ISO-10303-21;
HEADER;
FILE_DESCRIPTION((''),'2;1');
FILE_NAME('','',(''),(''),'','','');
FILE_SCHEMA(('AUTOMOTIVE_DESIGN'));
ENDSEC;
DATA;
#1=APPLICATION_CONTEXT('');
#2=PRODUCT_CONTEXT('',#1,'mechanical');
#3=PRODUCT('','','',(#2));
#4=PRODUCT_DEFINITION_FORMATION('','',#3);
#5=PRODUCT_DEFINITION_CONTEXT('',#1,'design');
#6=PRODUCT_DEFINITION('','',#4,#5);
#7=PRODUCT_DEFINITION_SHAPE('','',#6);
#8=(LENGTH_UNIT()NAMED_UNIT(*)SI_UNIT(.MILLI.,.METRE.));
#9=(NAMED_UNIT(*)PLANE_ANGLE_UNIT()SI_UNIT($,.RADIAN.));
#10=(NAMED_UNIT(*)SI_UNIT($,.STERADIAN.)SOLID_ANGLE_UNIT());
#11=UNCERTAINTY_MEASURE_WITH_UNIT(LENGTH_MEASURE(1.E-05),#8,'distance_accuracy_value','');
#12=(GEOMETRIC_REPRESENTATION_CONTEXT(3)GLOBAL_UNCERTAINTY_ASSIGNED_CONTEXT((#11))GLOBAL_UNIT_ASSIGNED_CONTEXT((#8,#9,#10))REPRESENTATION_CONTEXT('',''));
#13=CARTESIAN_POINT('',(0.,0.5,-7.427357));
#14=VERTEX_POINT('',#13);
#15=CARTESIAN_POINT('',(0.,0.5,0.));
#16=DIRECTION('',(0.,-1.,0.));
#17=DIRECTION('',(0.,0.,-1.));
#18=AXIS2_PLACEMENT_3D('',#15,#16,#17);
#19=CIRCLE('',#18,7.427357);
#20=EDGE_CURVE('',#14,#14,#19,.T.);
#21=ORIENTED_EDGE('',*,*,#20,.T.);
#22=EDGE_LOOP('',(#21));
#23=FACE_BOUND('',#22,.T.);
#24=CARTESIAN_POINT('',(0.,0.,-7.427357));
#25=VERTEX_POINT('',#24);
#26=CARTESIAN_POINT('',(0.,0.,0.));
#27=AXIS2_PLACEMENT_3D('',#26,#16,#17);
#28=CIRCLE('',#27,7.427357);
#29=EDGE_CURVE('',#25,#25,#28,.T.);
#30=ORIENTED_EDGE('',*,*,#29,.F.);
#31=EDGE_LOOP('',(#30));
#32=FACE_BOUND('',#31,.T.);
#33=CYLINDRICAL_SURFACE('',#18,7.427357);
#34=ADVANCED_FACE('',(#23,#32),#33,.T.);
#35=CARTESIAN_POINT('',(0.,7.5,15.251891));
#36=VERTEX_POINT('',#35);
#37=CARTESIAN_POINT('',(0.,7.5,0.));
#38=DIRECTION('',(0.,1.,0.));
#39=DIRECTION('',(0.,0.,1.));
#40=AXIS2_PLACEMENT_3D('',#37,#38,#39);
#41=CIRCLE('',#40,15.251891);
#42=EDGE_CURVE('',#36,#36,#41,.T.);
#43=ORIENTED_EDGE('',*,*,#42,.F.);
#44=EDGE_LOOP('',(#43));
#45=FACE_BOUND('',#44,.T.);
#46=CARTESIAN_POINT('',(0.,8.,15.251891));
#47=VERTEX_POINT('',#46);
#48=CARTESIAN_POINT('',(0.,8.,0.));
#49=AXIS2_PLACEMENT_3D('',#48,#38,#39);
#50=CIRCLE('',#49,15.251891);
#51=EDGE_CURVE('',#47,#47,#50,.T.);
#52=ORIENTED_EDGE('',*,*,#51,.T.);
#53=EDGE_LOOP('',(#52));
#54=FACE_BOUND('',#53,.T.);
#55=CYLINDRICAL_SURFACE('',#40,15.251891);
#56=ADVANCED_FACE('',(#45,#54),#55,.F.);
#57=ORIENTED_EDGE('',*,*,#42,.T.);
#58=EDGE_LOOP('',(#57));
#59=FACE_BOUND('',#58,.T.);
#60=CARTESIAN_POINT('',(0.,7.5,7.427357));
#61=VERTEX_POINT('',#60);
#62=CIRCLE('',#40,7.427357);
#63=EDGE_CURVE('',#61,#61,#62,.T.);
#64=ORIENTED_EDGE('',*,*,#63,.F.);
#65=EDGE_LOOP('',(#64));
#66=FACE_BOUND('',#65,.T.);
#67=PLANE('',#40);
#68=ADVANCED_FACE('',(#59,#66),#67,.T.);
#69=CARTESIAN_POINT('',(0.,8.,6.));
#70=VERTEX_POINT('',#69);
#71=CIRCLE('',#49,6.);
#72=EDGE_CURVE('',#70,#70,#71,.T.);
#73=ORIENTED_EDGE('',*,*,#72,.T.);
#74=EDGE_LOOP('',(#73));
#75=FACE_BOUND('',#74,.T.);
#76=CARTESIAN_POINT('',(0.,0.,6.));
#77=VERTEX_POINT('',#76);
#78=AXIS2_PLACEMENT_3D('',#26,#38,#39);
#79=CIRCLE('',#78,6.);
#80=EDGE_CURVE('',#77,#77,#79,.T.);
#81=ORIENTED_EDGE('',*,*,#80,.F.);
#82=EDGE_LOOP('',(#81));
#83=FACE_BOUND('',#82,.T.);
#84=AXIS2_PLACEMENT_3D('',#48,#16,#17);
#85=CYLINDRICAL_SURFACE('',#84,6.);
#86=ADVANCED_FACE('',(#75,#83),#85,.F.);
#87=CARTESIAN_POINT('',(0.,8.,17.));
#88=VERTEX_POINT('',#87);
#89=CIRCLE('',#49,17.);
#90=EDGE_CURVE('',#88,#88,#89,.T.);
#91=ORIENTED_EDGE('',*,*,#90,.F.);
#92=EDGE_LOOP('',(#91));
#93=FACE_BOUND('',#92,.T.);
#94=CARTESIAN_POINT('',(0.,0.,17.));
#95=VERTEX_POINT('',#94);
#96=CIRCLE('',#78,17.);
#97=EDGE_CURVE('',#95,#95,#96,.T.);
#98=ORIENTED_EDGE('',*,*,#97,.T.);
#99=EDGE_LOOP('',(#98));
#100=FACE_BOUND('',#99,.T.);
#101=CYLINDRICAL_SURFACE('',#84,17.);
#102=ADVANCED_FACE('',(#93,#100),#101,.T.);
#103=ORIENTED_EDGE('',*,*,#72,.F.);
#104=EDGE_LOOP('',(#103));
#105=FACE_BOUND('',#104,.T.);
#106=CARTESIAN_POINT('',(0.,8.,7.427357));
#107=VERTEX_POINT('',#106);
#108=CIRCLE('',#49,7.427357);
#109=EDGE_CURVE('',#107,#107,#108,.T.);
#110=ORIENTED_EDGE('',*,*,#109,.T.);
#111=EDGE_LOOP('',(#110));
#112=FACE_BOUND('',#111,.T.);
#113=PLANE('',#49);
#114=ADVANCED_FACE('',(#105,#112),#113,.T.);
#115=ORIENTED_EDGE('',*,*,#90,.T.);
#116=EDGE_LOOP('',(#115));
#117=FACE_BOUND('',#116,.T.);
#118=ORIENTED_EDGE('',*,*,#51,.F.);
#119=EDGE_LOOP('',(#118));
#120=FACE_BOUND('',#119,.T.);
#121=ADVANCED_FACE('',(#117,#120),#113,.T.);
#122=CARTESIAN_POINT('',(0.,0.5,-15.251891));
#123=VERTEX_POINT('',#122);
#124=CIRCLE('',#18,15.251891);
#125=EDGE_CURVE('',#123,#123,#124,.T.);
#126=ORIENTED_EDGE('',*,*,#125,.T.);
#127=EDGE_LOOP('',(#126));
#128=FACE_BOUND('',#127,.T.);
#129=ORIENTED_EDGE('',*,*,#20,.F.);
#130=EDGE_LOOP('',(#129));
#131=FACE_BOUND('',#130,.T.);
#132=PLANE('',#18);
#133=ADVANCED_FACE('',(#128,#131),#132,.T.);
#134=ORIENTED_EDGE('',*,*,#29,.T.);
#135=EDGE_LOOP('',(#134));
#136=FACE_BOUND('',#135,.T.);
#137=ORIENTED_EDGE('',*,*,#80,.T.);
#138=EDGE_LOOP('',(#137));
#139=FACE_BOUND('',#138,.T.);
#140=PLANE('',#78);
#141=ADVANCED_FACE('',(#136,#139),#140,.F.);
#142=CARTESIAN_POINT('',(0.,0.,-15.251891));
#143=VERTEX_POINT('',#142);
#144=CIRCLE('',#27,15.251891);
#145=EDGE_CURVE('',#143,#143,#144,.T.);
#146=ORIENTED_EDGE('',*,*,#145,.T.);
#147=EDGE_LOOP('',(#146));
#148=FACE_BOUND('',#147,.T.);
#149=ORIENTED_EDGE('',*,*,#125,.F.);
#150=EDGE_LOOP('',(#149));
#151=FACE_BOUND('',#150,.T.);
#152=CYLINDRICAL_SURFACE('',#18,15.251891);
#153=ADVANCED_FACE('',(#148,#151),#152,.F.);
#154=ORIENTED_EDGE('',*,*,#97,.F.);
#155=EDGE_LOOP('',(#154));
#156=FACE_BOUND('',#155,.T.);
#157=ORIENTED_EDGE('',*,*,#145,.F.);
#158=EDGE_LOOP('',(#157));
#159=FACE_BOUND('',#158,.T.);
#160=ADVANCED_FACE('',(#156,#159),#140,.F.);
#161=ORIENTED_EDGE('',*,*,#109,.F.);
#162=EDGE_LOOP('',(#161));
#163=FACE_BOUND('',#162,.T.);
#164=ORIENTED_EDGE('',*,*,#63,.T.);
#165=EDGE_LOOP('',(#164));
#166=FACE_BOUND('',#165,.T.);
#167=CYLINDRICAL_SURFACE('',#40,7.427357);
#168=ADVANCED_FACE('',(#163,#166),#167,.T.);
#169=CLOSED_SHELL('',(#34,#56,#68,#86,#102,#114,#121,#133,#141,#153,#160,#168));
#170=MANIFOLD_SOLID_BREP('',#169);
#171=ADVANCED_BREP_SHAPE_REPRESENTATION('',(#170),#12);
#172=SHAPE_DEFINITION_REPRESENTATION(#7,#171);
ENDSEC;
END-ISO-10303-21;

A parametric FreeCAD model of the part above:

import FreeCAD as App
import Part
import Sketcher
from FreeCAD import Vector
Q = App.Units.Quantity

doc = App.newDocument("Part")
body = doc.addObject("PartDesign::Body", "Body")

sketch1 = doc.addObject("Sketcher::SketchObject", "Sketch")
body.addObject(sketch1)
sketch1.AttachmentSupport = (doc.XZ_Plane, [""])
sketch1.MapMode = "FlatFace"
sketch1.addGeometry([
    Part.Circle(Vector(0, 0, 0), Vector(0, 0, 1), 17),
    Part.Circle(Vector(0, 0, 0), Vector(0, 0, 1), 6),
], False)
sketch1.addConstraint([
    Sketcher.Constraint("Coincident", 0, 3, -1, 1),
    Sketcher.Constraint("Coincident", 1, 3, -1, 1),
    Sketcher.Constraint("Diameter", 0, Q("34 mm")),
    Sketcher.Constraint("Diameter", 1, Q("12 mm")),
])
pad1 = doc.addObject("PartDesign::Pad", "Pad")
body.addObject(pad1)
pad1.Profile = sketch1
pad1.Length = 8
pad1.Reversed = True

sketch2 = doc.addObject("Sketcher::SketchObject", "Sketch001")
body.addObject(sketch2)
sketch2.AttachmentSupport = (doc.XZ_Plane, [""])
sketch2.MapMode = "FlatFace"
sketch2.AttachmentOffset = App.Placement(Vector(0, 0, -8), App.Rotation())
sketch2.addGeometry([
    Part.Circle(Vector(0, 0, 0), Vector(0, 0, 1), 15.251891),
    Part.Circle(Vector(0, 0, 0), Vector(0, 0, 1), 7.427357),
], False)
sketch2.addConstraint([
    Sketcher.Constraint("Coincident", 0, 3, -1, 1),
    Sketcher.Constraint("Coincident", 1, 3, -1, 1),
    Sketcher.Constraint("Diameter", 0, Q("30.503782 mm")),
    Sketcher.Constraint("Diameter", 1, Q("14.854713 mm")),
])
pocket1 = doc.addObject("PartDesign::Pocket", "Pocket")
body.addObject(pocket1)
pocket1.Profile = sketch2
pocket1.Length = 0.5
pocket1.Reversed = True

sketch3 = doc.addObject("Sketcher::SketchObject", "Sketch002")
body.addObject(sketch3)
sketch3.AttachmentSupport = (doc.XZ_Plane, [""])
sketch3.MapMode = "FlatFace"
sketch3.AttachmentOffset = App.Placement(Vector(0, 0, -0.5), App.Rotation())
sketch3.addGeometry([
    Part.Circle(Vector(0, 0, 0), Vector(0, 0, 1), 15.251891),
    Part.Circle(Vector(0, 0, 0), Vector(0, 0, 1), 7.427357),
], False)
sketch3.addConstraint([
    Sketcher.Constraint("Coincident", 0, 3, -1, 1),
    Sketcher.Constraint("Coincident", 1, 3, -1, 1),
    Sketcher.Constraint("Diameter", 0, Q("30.503782 mm")),
    Sketcher.Constraint("Diameter", 1, Q("14.854713 mm")),
])
pocket2 = doc.addObject("PartDesign::Pocket", "Pocket001")
body.addObject(pocket2)
pocket2.Profile = sketch3
pocket2.Length = 0.5
pocket2.Reversed = True

doc.recompute()
